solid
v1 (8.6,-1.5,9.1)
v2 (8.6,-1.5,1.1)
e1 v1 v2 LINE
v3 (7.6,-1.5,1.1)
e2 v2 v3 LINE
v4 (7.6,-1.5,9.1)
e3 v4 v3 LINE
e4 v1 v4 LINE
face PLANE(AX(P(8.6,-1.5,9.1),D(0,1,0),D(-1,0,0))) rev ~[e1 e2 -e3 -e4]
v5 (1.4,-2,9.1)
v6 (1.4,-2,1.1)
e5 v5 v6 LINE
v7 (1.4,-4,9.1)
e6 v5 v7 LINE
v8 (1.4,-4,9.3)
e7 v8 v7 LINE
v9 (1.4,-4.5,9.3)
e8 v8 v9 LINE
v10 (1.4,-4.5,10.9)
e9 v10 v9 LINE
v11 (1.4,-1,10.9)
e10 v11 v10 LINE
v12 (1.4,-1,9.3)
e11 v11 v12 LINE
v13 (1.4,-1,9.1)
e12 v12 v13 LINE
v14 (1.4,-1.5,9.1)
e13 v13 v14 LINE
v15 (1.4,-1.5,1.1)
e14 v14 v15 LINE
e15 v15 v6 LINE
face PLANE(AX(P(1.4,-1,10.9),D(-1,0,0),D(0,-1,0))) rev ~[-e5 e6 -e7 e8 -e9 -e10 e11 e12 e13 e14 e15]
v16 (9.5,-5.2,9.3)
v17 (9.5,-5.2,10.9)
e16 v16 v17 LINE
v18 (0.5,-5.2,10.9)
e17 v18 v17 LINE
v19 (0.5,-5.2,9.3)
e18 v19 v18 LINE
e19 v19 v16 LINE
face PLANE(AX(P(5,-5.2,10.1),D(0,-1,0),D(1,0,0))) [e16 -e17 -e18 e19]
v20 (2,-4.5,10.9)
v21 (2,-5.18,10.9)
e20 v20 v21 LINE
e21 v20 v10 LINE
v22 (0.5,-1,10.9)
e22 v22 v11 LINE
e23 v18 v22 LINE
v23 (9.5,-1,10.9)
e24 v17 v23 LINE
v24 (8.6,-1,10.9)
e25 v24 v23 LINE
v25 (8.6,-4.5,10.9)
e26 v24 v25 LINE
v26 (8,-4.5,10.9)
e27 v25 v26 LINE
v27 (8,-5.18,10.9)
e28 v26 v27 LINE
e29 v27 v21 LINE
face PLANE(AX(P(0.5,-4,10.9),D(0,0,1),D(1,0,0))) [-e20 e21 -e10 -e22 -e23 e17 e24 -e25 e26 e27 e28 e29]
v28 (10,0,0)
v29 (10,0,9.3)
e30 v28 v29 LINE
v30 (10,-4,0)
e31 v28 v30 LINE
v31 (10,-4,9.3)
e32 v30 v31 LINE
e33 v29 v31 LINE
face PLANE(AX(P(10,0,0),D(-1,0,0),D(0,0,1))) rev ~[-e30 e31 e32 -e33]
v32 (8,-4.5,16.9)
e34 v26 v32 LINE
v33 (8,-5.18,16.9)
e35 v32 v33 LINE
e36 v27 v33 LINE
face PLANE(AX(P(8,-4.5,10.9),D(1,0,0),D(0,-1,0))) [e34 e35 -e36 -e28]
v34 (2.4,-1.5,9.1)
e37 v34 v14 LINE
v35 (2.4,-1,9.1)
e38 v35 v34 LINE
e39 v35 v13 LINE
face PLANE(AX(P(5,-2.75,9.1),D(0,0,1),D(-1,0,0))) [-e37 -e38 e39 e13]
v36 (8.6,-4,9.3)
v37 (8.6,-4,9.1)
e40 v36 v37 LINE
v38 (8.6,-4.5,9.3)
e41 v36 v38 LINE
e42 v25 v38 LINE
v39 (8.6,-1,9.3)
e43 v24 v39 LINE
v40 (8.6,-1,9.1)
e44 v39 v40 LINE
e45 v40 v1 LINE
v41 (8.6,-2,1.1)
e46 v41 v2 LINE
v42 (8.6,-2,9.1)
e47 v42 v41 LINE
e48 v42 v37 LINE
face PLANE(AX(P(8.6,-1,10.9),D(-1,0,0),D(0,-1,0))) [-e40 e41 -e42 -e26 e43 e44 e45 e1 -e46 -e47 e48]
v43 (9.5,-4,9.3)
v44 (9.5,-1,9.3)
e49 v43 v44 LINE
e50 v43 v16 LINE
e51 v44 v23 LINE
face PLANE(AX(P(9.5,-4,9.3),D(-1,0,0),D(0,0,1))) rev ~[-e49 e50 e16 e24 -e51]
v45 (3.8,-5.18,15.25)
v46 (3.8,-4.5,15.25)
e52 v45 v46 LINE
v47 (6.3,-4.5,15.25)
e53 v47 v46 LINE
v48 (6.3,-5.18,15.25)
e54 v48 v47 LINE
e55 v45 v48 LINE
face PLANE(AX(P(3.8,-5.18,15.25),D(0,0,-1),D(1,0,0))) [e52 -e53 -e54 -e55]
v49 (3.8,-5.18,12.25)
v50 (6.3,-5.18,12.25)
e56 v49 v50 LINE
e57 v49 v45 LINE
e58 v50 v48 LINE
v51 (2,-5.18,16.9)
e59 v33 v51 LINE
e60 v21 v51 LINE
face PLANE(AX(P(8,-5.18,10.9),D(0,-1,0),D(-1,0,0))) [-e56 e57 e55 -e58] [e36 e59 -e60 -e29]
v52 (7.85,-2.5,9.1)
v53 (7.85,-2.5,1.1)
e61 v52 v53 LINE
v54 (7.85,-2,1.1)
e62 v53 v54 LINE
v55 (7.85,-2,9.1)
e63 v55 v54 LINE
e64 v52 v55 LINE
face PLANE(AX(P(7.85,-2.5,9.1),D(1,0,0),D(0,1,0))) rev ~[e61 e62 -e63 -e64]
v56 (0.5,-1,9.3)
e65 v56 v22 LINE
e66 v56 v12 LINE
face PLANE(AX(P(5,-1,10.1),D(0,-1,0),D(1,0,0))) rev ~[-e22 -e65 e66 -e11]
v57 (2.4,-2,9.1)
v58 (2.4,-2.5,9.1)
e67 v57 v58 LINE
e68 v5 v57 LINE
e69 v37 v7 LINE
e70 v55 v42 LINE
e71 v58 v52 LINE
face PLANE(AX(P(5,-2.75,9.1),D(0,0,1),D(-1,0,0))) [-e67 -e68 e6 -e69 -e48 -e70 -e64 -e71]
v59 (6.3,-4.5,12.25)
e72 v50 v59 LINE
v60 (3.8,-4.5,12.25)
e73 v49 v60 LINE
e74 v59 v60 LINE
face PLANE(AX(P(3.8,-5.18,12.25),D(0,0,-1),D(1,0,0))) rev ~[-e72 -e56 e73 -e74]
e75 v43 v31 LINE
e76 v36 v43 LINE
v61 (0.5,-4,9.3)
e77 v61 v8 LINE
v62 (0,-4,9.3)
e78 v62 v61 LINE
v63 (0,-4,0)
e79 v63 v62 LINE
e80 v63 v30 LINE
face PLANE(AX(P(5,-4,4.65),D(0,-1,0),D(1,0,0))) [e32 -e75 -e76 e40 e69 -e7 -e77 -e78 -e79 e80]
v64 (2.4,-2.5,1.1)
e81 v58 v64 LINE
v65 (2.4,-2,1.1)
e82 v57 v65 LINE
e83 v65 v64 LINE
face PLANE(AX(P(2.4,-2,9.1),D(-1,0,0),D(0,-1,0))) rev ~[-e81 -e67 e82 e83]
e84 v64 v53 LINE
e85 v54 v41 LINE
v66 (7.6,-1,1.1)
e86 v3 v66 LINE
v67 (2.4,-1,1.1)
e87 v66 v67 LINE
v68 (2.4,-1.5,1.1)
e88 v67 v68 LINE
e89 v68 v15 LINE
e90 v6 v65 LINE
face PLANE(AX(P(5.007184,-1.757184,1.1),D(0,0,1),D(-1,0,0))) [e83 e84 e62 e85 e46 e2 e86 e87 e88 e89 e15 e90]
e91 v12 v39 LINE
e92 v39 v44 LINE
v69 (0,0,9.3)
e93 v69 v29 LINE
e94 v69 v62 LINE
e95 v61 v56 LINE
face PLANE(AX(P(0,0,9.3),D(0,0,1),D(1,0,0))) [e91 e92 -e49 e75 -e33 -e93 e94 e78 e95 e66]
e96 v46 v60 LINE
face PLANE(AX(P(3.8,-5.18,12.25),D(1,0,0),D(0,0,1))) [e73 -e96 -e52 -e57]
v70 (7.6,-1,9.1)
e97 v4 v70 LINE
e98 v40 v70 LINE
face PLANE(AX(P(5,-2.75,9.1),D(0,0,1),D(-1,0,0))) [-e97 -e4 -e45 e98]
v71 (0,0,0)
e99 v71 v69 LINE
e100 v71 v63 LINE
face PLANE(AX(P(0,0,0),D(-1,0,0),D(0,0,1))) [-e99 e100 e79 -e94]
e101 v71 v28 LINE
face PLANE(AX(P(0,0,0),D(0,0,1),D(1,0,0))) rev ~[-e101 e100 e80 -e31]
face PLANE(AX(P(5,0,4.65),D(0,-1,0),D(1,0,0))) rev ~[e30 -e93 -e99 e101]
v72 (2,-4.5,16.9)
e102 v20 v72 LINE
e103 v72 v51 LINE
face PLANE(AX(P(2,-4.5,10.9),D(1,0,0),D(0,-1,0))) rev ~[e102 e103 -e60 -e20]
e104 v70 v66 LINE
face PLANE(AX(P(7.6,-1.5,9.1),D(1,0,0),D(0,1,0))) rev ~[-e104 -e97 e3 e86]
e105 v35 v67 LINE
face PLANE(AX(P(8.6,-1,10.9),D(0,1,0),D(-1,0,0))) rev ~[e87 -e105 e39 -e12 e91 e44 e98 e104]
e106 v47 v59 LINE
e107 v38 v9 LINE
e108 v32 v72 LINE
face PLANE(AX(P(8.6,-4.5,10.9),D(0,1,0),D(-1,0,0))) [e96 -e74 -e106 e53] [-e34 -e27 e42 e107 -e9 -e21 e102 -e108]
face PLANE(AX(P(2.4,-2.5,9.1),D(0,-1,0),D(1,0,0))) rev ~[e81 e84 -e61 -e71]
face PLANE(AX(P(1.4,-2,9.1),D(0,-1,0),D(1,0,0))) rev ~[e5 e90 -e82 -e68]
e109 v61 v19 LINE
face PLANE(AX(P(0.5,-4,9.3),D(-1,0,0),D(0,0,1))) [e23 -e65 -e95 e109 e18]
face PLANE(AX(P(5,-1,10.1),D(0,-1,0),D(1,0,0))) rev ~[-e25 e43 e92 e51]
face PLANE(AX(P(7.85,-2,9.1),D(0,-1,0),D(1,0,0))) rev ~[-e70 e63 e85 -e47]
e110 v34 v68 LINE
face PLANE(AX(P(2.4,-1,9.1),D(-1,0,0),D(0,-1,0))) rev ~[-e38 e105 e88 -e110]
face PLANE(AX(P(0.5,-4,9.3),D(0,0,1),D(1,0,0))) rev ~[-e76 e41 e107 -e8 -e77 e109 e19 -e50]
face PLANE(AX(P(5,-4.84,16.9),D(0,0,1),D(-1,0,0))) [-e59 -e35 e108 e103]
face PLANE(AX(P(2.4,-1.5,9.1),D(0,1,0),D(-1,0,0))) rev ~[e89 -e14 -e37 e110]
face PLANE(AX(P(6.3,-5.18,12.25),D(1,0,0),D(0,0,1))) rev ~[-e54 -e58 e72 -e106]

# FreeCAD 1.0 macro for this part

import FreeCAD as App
import Part
import Sketcher
Q = App.Units.Quantity


def add_polygon(sketch, points):
    """Adds a closed chain of lines whose ends are joined by coincident constraints."""
    first, n = sketch.GeometryCount, len(points)
    for a, b in zip(points, points[1:] + points[:1]):
        sketch.addGeometry(Part.LineSegment(App.Vector(*a, 0), App.Vector(*b, 0)), False)
    for i in range(n):
        sketch.addConstraint(Sketcher.Constraint("Coincident", first + i, 2, first + (i + 1) % n, 1))

doc = App.newDocument("Part")
body = doc.addObject("PartDesign::Body", "Body")

# Sketch on XZ plane
sketch1 = body.newObject("Sketcher::SketchObject", "Sketch")
sketch1.AttachmentSupport = (doc.getObject("XZ_Plane"), [""])
sketch1.MapMode = "FlatFace"
add_polygon(sketch1, [(0, 9), (0, 0), (10, 0), (10, 9)])  # lines 0-3
sketch1.addConstraint([
    Sketcher.Constraint("Vertical", 0),
    Sketcher.Constraint("Horizontal", 1),
    Sketcher.Constraint("Vertical", 2),
    Sketcher.Constraint("Horizontal", 3),
    Sketcher.Constraint("Coincident", 0, 2, -1, 1),
    Sketcher.Constraint("DistanceX", 1, 1, 1, 2, Q("10 mm")),
    Sketcher.Constraint("DistanceY", 0, 2, 0, 1, Q("9.3 mm")),
])
pad1 = body.newObject("PartDesign::Pad", "Pad")
pad1.Profile = sketch1
pad1.Length = 4

# Sketch on XZ plane
sketch2 = body.newObject("Sketcher::SketchObject", "Sketch001")
sketch2.AttachmentSupport = (doc.getObject("XZ_Plane"), [""])
sketch2.MapMode = "FlatFace"
sketch2.AttachmentOffset = App.Placement(App.Vector(0, 0, 4), App.Rotation())
add_polygon(sketch2, [(0.5, 10.9), (0.5, 9.3), (9.5, 9.3), (9.5, 10.9)])  # lines 0-3
sketch2.addConstraint([
    Sketcher.Constraint("Vertical", 0),
    Sketcher.Constraint("Horizontal", 1),
    Sketcher.Constraint("Vertical", 2),
    Sketcher.Constraint("Horizontal", 3),
    Sketcher.Constraint("DistanceX", 1, 1, 1, 2, Q("9 mm")),
    Sketcher.Constraint("DistanceY", 0, 2, 0, 1, Q("1.6 mm")),
    Sketcher.Constraint("DistanceX", -1, 1, 0, 2, Q("0.5 mm")),
    Sketcher.Constraint("DistanceY", -1, 1, 0, 2, Q("9.3 mm")),
])
pad2 = body.newObject("PartDesign::Pad", "Pad001")
pad2.Profile = sketch2
pad2.Length = 3
pad2.Reversed = True

# Sketch on XZ plane
sketch3 = body.newObject("Sketcher::SketchObject", "Sketch002")
sketch3.AttachmentSupport = (doc.getObject("XZ_Plane"), [""])
sketch3.MapMode = "FlatFace"
sketch3.AttachmentOffset = App.Placement(App.Vector(0, 0, 4), App.Rotation())
add_polygon(sketch3, [(0.5, 10.9), (0.5, 9.3), (9.5, 9.3), (9.5, 10.9)])  # lines 0-3
sketch3.addConstraint([
    Sketcher.Constraint("Vertical", 0),
    Sketcher.Constraint("Horizontal", 1),
    Sketcher.Constraint("Vertical", 2),
    Sketcher.Constraint("Horizontal", 3),
    Sketcher.Constraint("DistanceX", 1, 1, 1, 2, Q("9 mm")),
    Sketcher.Constraint("DistanceY", 0, 2, 0, 1, Q("1.6 mm")),
    Sketcher.Constraint("DistanceX", -1, 1, 0, 2, Q("0.5 mm")),
    Sketcher.Constraint("DistanceY", -1, 1, 0, 2, Q("9.3 mm")),
])
pad3 = body.newObject("PartDesign::Pad", "Pad002")
pad3.Profile = sketch3
pad3.Length = 1.2

# Sketch on XY plane
sketch4 = body.newObject("Sketcher::SketchObject", "Sketch003")
sketch4.AttachmentSupport = (doc.getObject("XY_Plane"), [""])
sketch4.MapMode = "FlatFace"
sketch4.AttachmentOffset = App.Placement(App.Vector(0, 0, 10.9), App.Rotation())
add_polygon(sketch4, [(8.6, -4.5), (8.6, -1), (1.4, -1), (1.4, -4.5)])  # lines 0-3
sketch4.addConstraint([
    Sketcher.Constraint("Vertical", 0),
    Sketcher.Constraint("Horizontal", 1),
    Sketcher.Constraint("Vertical", 2),
    Sketcher.Constraint("Horizontal", 3),
    Sketcher.Constraint("DistanceX", 1, 2, 1, 1, Q("7.2 mm")),
    Sketcher.Constraint("DistanceY", 0, 1, 0, 2, Q("3.5 mm")),
    Sketcher.Constraint("DistanceY", 0, 2, -1, 1, Q("1 mm")),
    Sketcher.Constraint("DistanceX", -1, 1, 0, 2, Q("8.6 mm")),
])
pocket1 = body.newObject("PartDesign::Pocket", "Pocket")
pocket1.Profile = sketch4
pocket1.Length = 1.8

# Sketch on XY plane
sketch5 = body.newObject("Sketcher::SketchObject", "Sketch004")
sketch5.AttachmentSupport = (doc.getObject("XY_Plane"), [""])
sketch5.MapMode = "FlatFace"
sketch5.AttachmentOffset = App.Placement(App.Vector(0, 0, 9.1), App.Rotation())
add_polygon(sketch5, [(8.6, -1.5), (7.6, -1.5), (7.6, -1), (2.4, -1), (2.4, -1.5), (1.4, -1.5), (1.4, -2), (2.4, -2), (2.4, -2.5), (7.8, -2.5), (7.8, -2), (8.6, -2)])  # lines 0-11
sketch5.addConstraint([
    Sketcher.Constraint("Horizontal", 0),
    Sketcher.Constraint("Vertical", 1),
    Sketcher.Constraint("Horizontal", 2),
    Sketcher.Constraint("Vertical", 3),
    Sketcher.Constraint("Horizontal", 4),
    Sketcher.Constraint("Vertical", 5),
    Sketcher.Constraint("Horizontal", 6),
    Sketcher.Constraint("Vertical", 7),
    Sketcher.Constraint("Horizontal", 8),
    Sketcher.Constraint("Vertical", 9),
    Sketcher.Constraint("Horizontal", 10),
    Sketcher.Constraint("Vertical", 11),
    Sketcher.Constraint("Horizontal", 0, 2, 3, 2),
    Sketcher.Constraint("Horizontal", 6, 2, 9, 2),
    Sketcher.Constraint("Vertical", 3, 2, 6, 2),
    Sketcher.Constraint("Equal", 0, 4),
    Sketcher.Constraint("Equal", 3, 5),
    Sketcher.Constraint("Equal", 5, 7),
    Sketcher.Constraint("DistanceX", 0, 2, 0, 1, Q("1 mm")),
    Sketcher.Constraint("DistanceX", 2, 2, 2, 1, Q("5.2 mm")),
    Sketcher.Constraint("DistanceY", 1, 1, 1, 2, Q("0.5 mm")),
    Sketcher.Constraint("DistanceY", 1, 2, -1, 1, Q("1 mm")),
    Sketcher.Constraint("DistanceX", 8, 1, 8, 2, Q("5.45 mm")),
    Sketcher.Constraint("DistanceX", -1, 1, 0, 2, Q("7.6 mm")),
])
pocket2 = body.newObject("PartDesign::Pocket", "Pocket001")
pocket2.Profile = sketch5
pocket2.Length = 8

# Sketch on XY plane
sketch6 = body.newObject("Sketcher::SketchObject", "Sketch005")
sketch6.AttachmentSupport = (doc.getObject("XY_Plane"), [""])
sketch6.MapMode = "FlatFace"
sketch6.AttachmentOffset = App.Placement(App.Vector(0, 0, 10.9), App.Rotation())
add_polygon(sketch6, [(8, -5.2), (8, -4.5), (2, -4.5), (2, -5.2)])  # lines 0-3
sketch6.addConstraint([
    Sketcher.Constraint("Vertical", 0),
    Sketcher.Constraint("Horizontal", 1),
    Sketcher.Constraint("Vertical", 2),
    Sketcher.Constraint("Horizontal", 3),
    Sketcher.Constraint("DistanceX", 1, 2, 1, 1, Q("6 mm")),
    Sketcher.Constraint("DistanceX", -1, 1, 0, 2, Q("8 mm")),
    Sketcher.Constraint("DistanceY", 0, 1, 0, 2, Q("0.68 mm")),
    Sketcher.Constraint("DistanceY", 0, 2, -1, 1, Q("4.5 mm")),
])
pad4 = body.newObject("PartDesign::Pad", "Pad003")
pad4.Profile = sketch6
pad4.Length = 6

# Sketch on XZ plane
sketch7 = body.newObject("Sketcher::SketchObject", "Sketch006")
sketch7.AttachmentSupport = (doc.getObject("XZ_Plane"), [""])
sketch7.MapMode = "FlatFace"
sketch7.AttachmentOffset = App.Placement(App.Vector(0, 0, 5.18), App.Rotation())
add_polygon(sketch7, [(3.8, 15.2), (3.8, 12.2), (6.3, 12.2), (6.3, 15.2)])  # lines 0-3
sketch7.addConstraint([
    Sketcher.Constraint("Vertical", 0),
    Sketcher.Constraint("Horizontal", 1),
    Sketcher.Constraint("Vertical", 2),
    Sketcher.Constraint("Horizontal", 3),
    Sketcher.Constraint("DistanceY", 0, 2, 0, 1, Q("3 mm")),
    Sketcher.Constraint("DistanceX", 1, 1, 1, 2, Q("2.5 mm")),
    Sketcher.Constraint("DistanceX", -1, 1, 0, 2, Q("3.8 mm")),
    Sketcher.Constraint("DistanceY", -1, 1, 0, 2, Q("12.25 mm")),
])
pocket3 = body.newObject("PartDesign::Pocket", "Pocket002")
pocket3.Profile = sketch7
pocket3.Length = 5

doc.recompute()
